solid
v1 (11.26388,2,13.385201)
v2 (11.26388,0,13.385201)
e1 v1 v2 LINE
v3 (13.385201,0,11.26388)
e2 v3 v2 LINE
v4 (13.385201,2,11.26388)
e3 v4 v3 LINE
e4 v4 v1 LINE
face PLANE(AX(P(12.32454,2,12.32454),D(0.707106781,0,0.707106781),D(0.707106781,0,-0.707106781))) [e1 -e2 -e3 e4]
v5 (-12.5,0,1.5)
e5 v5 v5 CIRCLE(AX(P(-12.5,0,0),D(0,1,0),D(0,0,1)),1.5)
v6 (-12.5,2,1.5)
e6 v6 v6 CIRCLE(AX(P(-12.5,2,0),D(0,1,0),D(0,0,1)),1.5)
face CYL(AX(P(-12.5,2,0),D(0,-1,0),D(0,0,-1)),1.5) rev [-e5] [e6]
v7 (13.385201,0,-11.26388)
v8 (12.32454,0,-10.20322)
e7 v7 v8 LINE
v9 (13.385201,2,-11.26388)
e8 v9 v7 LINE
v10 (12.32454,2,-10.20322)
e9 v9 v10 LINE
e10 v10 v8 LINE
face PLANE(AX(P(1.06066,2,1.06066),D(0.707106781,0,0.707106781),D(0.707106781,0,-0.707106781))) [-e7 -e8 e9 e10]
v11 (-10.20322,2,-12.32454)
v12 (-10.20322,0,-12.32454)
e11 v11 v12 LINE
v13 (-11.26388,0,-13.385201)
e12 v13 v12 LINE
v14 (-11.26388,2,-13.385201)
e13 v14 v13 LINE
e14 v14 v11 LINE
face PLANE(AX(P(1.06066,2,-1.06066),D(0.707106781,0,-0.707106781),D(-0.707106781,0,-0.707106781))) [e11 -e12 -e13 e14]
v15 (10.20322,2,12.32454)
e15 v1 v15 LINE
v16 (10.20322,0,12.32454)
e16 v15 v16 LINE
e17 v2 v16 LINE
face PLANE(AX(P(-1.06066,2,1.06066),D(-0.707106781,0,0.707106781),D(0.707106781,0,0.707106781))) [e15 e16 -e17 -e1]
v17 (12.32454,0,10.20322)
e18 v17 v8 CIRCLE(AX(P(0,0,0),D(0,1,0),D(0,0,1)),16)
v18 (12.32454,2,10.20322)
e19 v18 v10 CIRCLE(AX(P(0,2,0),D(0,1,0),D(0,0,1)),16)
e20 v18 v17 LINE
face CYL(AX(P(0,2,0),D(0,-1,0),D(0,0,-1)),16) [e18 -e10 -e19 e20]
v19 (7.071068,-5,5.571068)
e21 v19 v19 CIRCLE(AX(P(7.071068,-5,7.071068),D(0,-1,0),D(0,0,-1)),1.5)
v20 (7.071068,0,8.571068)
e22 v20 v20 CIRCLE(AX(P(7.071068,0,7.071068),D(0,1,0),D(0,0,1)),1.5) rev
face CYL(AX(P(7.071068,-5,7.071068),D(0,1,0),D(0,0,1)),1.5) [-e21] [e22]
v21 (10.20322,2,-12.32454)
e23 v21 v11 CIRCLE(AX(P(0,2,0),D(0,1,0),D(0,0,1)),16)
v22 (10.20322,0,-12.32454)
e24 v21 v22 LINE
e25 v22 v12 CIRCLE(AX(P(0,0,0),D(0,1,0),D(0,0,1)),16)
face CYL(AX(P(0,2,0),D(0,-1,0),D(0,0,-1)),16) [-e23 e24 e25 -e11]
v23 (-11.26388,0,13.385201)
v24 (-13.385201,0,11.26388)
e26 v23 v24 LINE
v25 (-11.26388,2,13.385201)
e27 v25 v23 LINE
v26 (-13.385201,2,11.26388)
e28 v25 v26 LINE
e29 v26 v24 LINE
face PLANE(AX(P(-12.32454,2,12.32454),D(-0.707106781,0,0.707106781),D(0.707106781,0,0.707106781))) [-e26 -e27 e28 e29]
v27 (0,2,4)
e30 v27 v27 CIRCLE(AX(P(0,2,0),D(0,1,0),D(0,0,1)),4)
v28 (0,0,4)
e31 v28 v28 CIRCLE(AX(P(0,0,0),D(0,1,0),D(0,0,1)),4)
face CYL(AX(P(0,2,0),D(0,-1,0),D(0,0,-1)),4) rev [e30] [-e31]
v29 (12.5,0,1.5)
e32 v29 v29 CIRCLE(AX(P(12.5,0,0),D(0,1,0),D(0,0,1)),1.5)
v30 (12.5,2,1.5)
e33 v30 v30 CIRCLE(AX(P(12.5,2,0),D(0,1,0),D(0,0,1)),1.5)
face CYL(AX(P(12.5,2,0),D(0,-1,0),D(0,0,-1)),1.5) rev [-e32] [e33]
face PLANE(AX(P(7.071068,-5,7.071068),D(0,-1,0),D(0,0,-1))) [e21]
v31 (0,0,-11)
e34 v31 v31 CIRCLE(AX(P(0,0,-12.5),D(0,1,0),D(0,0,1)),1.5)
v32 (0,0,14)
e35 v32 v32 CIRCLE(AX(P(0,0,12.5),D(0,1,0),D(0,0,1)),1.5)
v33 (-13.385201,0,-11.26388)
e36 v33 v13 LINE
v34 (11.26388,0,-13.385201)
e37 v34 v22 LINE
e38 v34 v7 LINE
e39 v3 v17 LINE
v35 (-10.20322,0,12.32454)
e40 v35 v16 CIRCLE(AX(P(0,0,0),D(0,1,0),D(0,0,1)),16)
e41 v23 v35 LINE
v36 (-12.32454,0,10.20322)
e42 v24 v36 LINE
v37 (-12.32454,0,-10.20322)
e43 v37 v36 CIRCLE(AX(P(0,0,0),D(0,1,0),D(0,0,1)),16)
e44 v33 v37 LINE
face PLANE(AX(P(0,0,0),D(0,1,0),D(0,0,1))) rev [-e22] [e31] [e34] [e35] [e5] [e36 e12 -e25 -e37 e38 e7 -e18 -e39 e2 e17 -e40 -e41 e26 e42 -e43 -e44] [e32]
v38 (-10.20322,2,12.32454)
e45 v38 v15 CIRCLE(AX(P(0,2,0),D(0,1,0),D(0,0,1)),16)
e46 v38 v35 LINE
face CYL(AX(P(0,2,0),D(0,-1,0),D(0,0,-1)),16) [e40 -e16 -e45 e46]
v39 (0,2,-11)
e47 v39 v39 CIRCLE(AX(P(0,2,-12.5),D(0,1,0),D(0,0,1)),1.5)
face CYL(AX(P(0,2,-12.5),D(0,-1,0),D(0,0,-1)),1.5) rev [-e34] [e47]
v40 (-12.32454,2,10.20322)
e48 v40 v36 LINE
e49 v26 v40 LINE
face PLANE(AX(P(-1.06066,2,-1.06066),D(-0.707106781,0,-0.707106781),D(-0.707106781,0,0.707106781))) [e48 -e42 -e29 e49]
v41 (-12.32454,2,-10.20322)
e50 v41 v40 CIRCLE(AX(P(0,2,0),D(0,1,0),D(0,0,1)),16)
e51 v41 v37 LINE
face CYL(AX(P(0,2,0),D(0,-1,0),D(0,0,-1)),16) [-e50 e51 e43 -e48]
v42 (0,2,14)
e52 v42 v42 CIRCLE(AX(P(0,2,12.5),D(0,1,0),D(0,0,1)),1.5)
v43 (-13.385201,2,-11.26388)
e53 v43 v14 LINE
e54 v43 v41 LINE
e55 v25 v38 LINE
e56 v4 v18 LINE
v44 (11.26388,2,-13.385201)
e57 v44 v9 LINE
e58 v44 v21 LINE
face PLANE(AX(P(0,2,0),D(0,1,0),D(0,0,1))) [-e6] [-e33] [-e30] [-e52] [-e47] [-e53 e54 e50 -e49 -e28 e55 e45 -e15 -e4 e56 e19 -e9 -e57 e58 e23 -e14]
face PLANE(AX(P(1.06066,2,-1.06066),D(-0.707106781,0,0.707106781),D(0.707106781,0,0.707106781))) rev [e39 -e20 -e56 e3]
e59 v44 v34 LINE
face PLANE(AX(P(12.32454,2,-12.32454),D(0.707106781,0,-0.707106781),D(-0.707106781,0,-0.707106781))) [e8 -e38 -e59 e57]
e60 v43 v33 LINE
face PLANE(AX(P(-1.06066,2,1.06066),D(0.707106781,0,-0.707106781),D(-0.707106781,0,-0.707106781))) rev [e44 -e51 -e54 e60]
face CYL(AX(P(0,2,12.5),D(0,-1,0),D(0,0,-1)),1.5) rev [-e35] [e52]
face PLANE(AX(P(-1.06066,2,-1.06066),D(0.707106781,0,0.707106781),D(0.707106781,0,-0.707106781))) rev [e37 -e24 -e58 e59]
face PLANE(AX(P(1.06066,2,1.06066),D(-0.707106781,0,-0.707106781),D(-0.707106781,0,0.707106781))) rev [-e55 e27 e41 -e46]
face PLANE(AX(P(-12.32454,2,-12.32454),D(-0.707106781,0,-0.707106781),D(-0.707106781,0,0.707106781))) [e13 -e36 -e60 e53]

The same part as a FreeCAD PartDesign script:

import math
import FreeCAD as App
import Part
import Sketcher

V = App.Vector
Q = App.Units.Quantity

doc = App.newDocument("Part")
params = doc.addObject("Spreadsheet::Sheet", "Params")
for row, (alias, value) in enumerate([
    ("sketch1_diameter", "3 mm"),
    ("sketch1_diameter2", "8 mm"),
    ("sketch1_radius", "16 mm"),
    ("sketch1_length", "3 mm"),
    ("sketch1_length2", "1.5 mm"),
    ("pad1_length", "2 mm"),
    ("sketch2_diameter", "3 mm"),
    ("pad2_length", "5 mm"),
], start=1):
    params.set(f"A{row}", alias)
    params.set(f"B{row}", "=" + value)
    params.setAlias(f"B{row}", alias)

body = doc.addObject("PartDesign::Body", "Body")

sketch1 = body.newObject("Sketcher::SketchObject", "Sketch")
sketch1.AttachmentSupport = (doc.getObject("XZ_Plane"), [""])
sketch1.MapMode = "FlatFace"
sketch1.addGeometry(Part.LineSegment(V(-12.3, 10.2, 0), V(-13.4, 11.3, 0)), False)
sketch1.addGeometry(Part.LineSegment(V(-13.4, 11.3, 0), V(-11.3, 13.4, 0)), False)
sketch1.addGeometry(Part.LineSegment(V(-11.3, 13.4, 0), V(-10.2, 12.3, 0)), False)
sketch1.addGeometry(Part.ArcOfCircle(Part.Circle(V(0, 0, 0), V(0, 0, 1), 16), math.radians(50), math.radians(130)), False)
sketch1.addGeometry(Part.LineSegment(V(10.2, 12.3, 0), V(11.3, 13.4, 0)), False)
sketch1.addGeometry(Part.LineSegment(V(11.3, 13.4, 0), V(13.4, 11.3, 0)), False)
sketch1.addGeometry(Part.LineSegment(V(13.4, 11.3, 0), V(12.3, 10.2, 0)), False)
sketch1.addGeometry(Part.ArcOfCircle(Part.Circle(V(0, 0, 0), V(0, 0, 1), 16), math.radians(-40), math.radians(40)), False)
sketch1.addGeometry(Part.LineSegment(V(12.3, -10.2, 0), V(13.4, -11.3, 0)), False)
sketch1.addGeometry(Part.LineSegment(V(13.4, -11.3, 0), V(11.3, -13.4, 0)), False)
sketch1.addGeometry(Part.LineSegment(V(11.3, -13.4, 0), V(10.2, -12.3, 0)), False)
sketch1.addGeometry(Part.ArcOfCircle(Part.Circle(V(0, 0, 0), V(0, 0, 1), 16), math.radians(-130), math.radians(-50)), False)
sketch1.addGeometry(Part.LineSegment(V(-10.2, -12.3, 0), V(-11.3, -13.4, 0)), False)
sketch1.addGeometry(Part.LineSegment(V(-11.3, -13.4, 0), V(-13.4, -11.3, 0)), False)
sketch1.addGeometry(Part.LineSegment(V(-13.4, -11.3, 0), V(-12.3, -10.2, 0)), False)
sketch1.addGeometry(Part.ArcOfCircle(Part.Circle(V(0, 0, 0), V(0, 0, 1), 16), math.radians(140), math.radians(220)), False)
sketch1.addGeometry(Part.Circle(V(0, 12.5, 0), V(0, 0, 1), 1.5), False)
sketch1.addGeometry(Part.Circle(V(-12.5, 0, 0), V(0, 0, 1), 1.5), False)
sketch1.addGeometry(Part.Circle(V(0, 0, 0), V(0, 0, 1), 4), False)
sketch1.addGeometry(Part.Circle(V(12.5, 0, 0), V(0, 0, 1), 1.5), False)
sketch1.addGeometry(Part.Circle(V(0, -12.5, 0), V(0, 0, 1), 1.5), False)
sketch1.addConstraint(Sketcher.Constraint("Coincident", 0, 2, 1, 1))
sketch1.addConstraint(Sketcher.Constraint("Coincident", 1, 2, 2, 1))
sketch1.addConstraint(Sketcher.Constraint("Coincident", 2, 2, 3, 2))
sketch1.addConstraint(Sketcher.Constraint("Coincident", 3, 1, 4, 1))
sketch1.addConstraint(Sketcher.Constraint("Coincident", 4, 2, 5, 1))
sketch1.addConstraint(Sketcher.Constraint("Coincident", 5, 2, 6, 1))
sketch1.addConstraint(Sketcher.Constraint("Coincident", 6, 2, 7, 2))
sketch1.addConstraint(Sketcher.Constraint("Coincident", 7, 1, 8, 1))
sketch1.addConstraint(Sketcher.Constraint("Coincident", 8, 2, 9, 1))
sketch1.addConstraint(Sketcher.Constraint("Coincident", 9, 2, 10, 1))
sketch1.addConstraint(Sketcher.Constraint("Coincident", 10, 2, 11, 2))
sketch1.addConstraint(Sketcher.Constraint("Coincident", 11, 1, 12, 1))
sketch1.addConstraint(Sketcher.Constraint("Coincident", 12, 2, 13, 1))
sketch1.addConstraint(Sketcher.Constraint("Coincident", 13, 2, 14, 1))
sketch1.addConstraint(Sketcher.Constraint("Coincident", 14, 2, 15, 2))
sketch1.addConstraint(Sketcher.Constraint("Coincident", 15, 1, 0, 1))
sketch1.addConstraint(Sketcher.Constraint("Coincident", 3, 3, -1, 1))
sketch1.addConstraint(Sketcher.Constraint("Coincident", 7, 3, -1, 1))
sketch1.addConstraint(Sketcher.Constraint("Coincident", 11, 3, -1, 1))
sketch1.addConstraint(Sketcher.Constraint("Coincident", 15, 3, -1, 1))
sketch1.addConstraint(Sketcher.Constraint("Coincident", 18, 3, -1, 1))
sketch1.addConstraint(Sketcher.Constraint("Equal", 3, 7))
sketch1.addConstraint(Sketcher.Constraint("Equal", 7, 11))
sketch1.addConstraint(Sketcher.Constraint("Equal", 11, 15))
sketch1.addConstraint(Sketcher.Constraint("Equal", 16, 17))
sketch1.addConstraint(Sketcher.Constraint("Equal", 17, 19))
sketch1.addConstraint(Sketcher.Constraint("Equal", 19, 20))
sketch1.addConstraint(Sketcher.Constraint("Symmetric", 17, 3, 19, 3, -1, 1))
sketch1.addConstraint(Sketcher.Constraint("Symmetric", 16, 3, 20, 3, -1, 1))
sketch1.addConstraint(Sketcher.Constraint("Symmetric", 0, 2, 8, 2, -1, 1))
sketch1.addConstraint(Sketcher.Constraint("Symmetric", 1, 2, 9, 2, -1, 1))
sketch1.addConstraint(Sketcher.Constraint("Symmetric", 4, 2, 12, 2, -1, 1))
sketch1.addConstraint(Sketcher.Constraint("Symmetric", 5, 2, 13, 2, -1, 1))
sketch1.addConstraint(Sketcher.Constraint("Symmetric", 1, 2, 4, 2, -2))
sketch1.addConstraint(Sketcher.Constraint("Symmetric", 0, 2, 5, 2, -2))
sketch1.addConstraint(Sketcher.Constraint("PointOnObject", 16, 3, -2))
sketch1.addConstraint(Sketcher.Constraint("PointOnObject", 17, 3, -1))
sketch1.addConstraint(Sketcher.Constraint("Perpendicular", 0, 1))
sketch1.addConstraint(Sketcher.Constraint("Perpendicular", 1, 2))
sketch1.addConstraint(Sketcher.Constraint("Perpendicular", 2, 4))
sketch1.addConstraint(Sketcher.Constraint("Perpendicular", 4, 5))
sketch1.addConstraint(Sketcher.Constraint("Perpendicular", 5, 6))
sketch1.addConstraint(Sketcher.Constraint("Perpendicular", 6, 8))
sketch1.addConstraint(Sketcher.Constraint("Perpendicular", 9, 10))
sketch1.addConstraint(Sketcher.Constraint("Perpendicular", 10, 12))
sketch1.addConstraint(Sketcher.Constraint("Perpendicular", 13, 14))
sketch1.addConstraint(Sketcher.Constraint("Equal", 0, 2))
sketch1.addConstraint(Sketcher.Constraint("Diameter", 16, Q("3 mm")))
sketch1.addConstraint(Sketcher.Constraint("Diameter", 18, Q("8 mm")))
sketch1.addConstraint(Sketcher.Constraint("Radius", 3, Q("16 mm")))
sketch1.addConstraint(Sketcher.Constraint("Distance", 1, Q("3 mm")))
sketch1.addConstraint(Sketcher.Constraint("Distance", 0, Q("1.5 mm")))
sketch1.addConstraint(Sketcher.Constraint("DistanceY", -1, 1, 16, 3, Q("12.5 mm")))
sketch1.addConstraint(Sketcher.Constraint("DistanceX", 17, 3, -1, 1, Q("12.5 mm")))
sketch1.setExpression("Constraints[47]", "Params.sketch1_diameter")
sketch1.setExpression("Constraints[48]", "Params.sketch1_diameter2")
sketch1.setExpression("Constraints[49]", "Params.sketch1_radius")
sketch1.setExpression("Constraints[50]", "Params.sketch1_length")
sketch1.setExpression("Constraints[51]", "Params.sketch1_length2")
pad1 = body.newObject("PartDesign::Pad", "Pad")
pad1.Profile = sketch1
pad1.setExpression("Length", "Params.pad1_length")
pad1.Reversed = True

sketch2 = body.newObject("Sketcher::SketchObject", "Sketch001")
sketch2.AttachmentSupport = (doc.getObject("XZ_Plane"), [""])
sketch2.MapMode = "FlatFace"
sketch2.addGeometry(Part.Circle(V(7.1, 7.1, 0), V(0, 0, 1), 1.5), False)
sketch2.addConstraint(Sketcher.Constraint("Diameter", 0, Q("3 mm")))
sketch2.addConstraint(Sketcher.Constraint("DistanceX", -1, 1, 0, 3, Q("7.071068 mm")))
sketch2.addConstraint(Sketcher.Constraint("DistanceY", -1, 1, 0, 3, Q("7.071068 mm")))
sketch2.setExpression("Constraints[0]", "Params.sketch2_diameter")
pad2 = body.newObject("PartDesign::Pad", "Pad001")
pad2.Profile = sketch2
pad2.setExpression("Length", "Params.pad2_length")

doc.recompute()
